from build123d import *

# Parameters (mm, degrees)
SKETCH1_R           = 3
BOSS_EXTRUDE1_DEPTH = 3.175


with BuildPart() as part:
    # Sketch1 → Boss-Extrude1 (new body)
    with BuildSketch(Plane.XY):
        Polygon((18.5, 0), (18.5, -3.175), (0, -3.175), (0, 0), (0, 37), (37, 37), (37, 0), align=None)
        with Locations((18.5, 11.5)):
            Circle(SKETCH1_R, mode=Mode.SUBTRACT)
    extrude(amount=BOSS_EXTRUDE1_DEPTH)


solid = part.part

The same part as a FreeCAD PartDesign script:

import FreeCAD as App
import Part
import Sketcher

V = App.Vector


def add_polygon(sketch, points):
    """Adds a closed chain of lines whose ends are joined by coincident constraints."""
    first, n = sketch.GeometryCount, len(points)
    for a, b in zip(points, points[1:] + points[:1]):
        sketch.addGeometry(Part.LineSegment(App.Vector(*a, 0), App.Vector(*b, 0)), False)
    for i in range(n):
        sketch.addConstraint(Sketcher.Constraint("Coincident", first + i, 2, first + (i + 1) % n, 1))

doc = App.newDocument("Part")
params = doc.addObject("Spreadsheet::Sheet", "Params")
for row, (alias, value) in enumerate([
    ("sketch1_diameter", "6 mm"),
    ("sketch1_width", "37 mm"),
    ("pad1_length", "3.175 mm"),
], start=1):
    params.set(f"A{row}", alias)
    params.set(f"B{row}", "=" + value)
    params.setAlias(f"B{row}", alias)

body = doc.addObject("PartDesign::Body", "Body")

sketch1 = body.newObject("Sketcher::SketchObject", "Sketch")
sketch1.AttachmentSupport = (doc.getObject("XY_Plane"), [""])
sketch1.MapMode = "FlatFace"
add_polygon(sketch1, [(18.5, -3.2), (18.5, 0), (37, 0), (37, 37), (0, 37), (0, -3.2)])
sketch1.addGeometry(Part.Circle(V(18.5, 11.5, 0), V(0, 0, 1), 3), False)
sketch1.addConstraint([
    Sketcher.Constraint("Vertical", 0),
    Sketcher.Constraint("Horizontal", 1),
    Sketcher.Constraint("Vertical", 2),
    Sketcher.Constraint("Horizontal", 3),
    Sketcher.Constraint("Vertical", 4),
    Sketcher.Constraint("Horizontal", 5),
    Sketcher.Constraint("PointOnObject", 0, 2, -1),
    Sketcher.Constraint("PointOnObject", 3, 2, -2),
    Sketcher.Constraint("Vertical", 6, 3, 0, 2),
    Sketcher.Constraint("Equal", 1, 5),
    Sketcher.Constraint("Equal", 3, 2),
    Sketcher.Constraint("Diameter", 6, 6.0),
    Sketcher.Constraint("DistanceX", 3, 2, 3, 1, 37.0),
    Sketcher.Constraint("DistanceY", -1, 1, 6, 3, 11.5),
    Sketcher.Constraint("DistanceY", 0, 1, 0, 2, 3.175),
])
sketch1.setExpression("Constraints[17]", "Params.sketch1_diameter")
sketch1.setExpression("Constraints[18]", "Params.sketch1_width")
pad1 = body.newObject("PartDesign::Pad", "Pad")
pad1.Profile = sketch1
pad1.setExpression("Length", "Params.pad1_length")

doc.recompute()
